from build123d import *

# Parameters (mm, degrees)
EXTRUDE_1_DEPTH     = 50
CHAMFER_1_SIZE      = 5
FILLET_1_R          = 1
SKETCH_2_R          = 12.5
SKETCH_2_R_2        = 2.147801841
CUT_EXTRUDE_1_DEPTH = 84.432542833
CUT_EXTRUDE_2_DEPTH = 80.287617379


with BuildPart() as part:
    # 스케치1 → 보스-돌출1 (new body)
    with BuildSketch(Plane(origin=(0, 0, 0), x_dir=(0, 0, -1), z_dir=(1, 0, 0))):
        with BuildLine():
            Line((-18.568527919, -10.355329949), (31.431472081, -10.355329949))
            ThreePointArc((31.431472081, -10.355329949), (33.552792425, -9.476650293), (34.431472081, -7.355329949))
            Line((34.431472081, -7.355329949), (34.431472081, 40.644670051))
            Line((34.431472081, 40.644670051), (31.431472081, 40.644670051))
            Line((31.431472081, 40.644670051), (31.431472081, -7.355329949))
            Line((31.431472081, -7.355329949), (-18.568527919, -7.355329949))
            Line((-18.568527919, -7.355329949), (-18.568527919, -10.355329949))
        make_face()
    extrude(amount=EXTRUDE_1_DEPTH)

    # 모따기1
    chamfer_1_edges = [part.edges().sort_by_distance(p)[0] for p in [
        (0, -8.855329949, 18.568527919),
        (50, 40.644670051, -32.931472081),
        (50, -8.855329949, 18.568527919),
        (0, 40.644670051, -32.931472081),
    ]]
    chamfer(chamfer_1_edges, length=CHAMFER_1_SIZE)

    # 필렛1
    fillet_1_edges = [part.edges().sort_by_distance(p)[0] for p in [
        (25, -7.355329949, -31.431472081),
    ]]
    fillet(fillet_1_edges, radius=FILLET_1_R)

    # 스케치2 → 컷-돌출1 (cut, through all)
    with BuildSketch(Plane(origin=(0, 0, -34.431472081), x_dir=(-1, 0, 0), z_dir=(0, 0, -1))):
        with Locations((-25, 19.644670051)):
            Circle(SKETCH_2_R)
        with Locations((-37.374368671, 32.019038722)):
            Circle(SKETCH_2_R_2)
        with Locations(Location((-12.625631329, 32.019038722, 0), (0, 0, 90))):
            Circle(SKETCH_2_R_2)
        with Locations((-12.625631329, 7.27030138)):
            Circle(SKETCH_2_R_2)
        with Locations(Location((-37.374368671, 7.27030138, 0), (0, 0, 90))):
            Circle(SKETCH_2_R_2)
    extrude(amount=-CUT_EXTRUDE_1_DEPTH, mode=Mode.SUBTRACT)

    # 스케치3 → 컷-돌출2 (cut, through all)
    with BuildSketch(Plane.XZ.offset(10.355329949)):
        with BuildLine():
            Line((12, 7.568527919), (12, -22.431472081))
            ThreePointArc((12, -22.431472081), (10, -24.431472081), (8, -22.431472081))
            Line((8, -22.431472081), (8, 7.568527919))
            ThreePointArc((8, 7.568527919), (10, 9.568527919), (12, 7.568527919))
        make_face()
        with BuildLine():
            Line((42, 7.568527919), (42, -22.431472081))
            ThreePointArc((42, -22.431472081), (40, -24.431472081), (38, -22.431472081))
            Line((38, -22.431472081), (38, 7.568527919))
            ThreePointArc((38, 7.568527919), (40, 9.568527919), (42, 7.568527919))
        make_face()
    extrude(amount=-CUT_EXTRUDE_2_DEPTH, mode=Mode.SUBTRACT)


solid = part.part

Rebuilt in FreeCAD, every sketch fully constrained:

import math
import FreeCAD as App
import Part
import Sketcher


def edges_at(feature, points):
    """Names of the edges that pass closest to the given points."""
    edges = feature.Shape.Edges
    near = lambda p: min(range(len(edges)), key=lambda i: edges[i].distToShape(Part.Vertex(*p))[0])
    return sorted({f"Edge{near(p) + 1}" for p in points})

doc = App.newDocument("Part")
body = doc.addObject("PartDesign::Body", "Body")

# Sketch on YZ plane
sketch1 = body.newObject("Sketcher::SketchObject", "Sketch")
sketch1.AttachmentSupport = (doc.getObject("YZ_Plane"), [""])
sketch1.MapMode = "FlatFace"
sketch1.addGeometry([
    Part.LineSegment(App.Vector(-10.35533, 18.568528, 0), App.Vector(-10.35533, -31.431472, 0)),  # 0
    Part.ArcOfCircle(Part.Circle(App.Vector(-7.35533, -31.431472, 0), App.Vector(0, 0, 1), 3), math.radians(180), math.radians(270)),  # 1
    Part.LineSegment(App.Vector(-7.35533, -34.431472, 0), App.Vector(40.64467, -34.431472, 0)),  # 2
    Part.LineSegment(App.Vector(40.64467, -34.431472, 0), App.Vector(40.64467, -31.431472, 0)),  # 3
    Part.LineSegment(App.Vector(40.64467, -31.431472, 0), App.Vector(-7.35533, -31.431472, 0)),  # 4
    Part.LineSegment(App.Vector(-7.35533, -31.431472, 0), App.Vector(-7.35533, 18.568528, 0)),  # 5
    Part.LineSegment(App.Vector(-7.35533, 18.568528, 0), App.Vector(-10.35533, 18.568528, 0)),  # 6
], False)
sketch1.addConstraint([
    Sketcher.Constraint("Tangent", 0, 2, 1, 1),
    Sketcher.Constraint("Tangent", 1, 2, 2, 1),
    Sketcher.Constraint("Coincident", 2, 2, 3, 1),
    Sketcher.Constraint("Coincident", 3, 2, 4, 1),
    Sketcher.Constraint("Coincident", 4, 2, 5, 1),
    Sketcher.Constraint("Coincident", 5, 2, 6, 1),
    Sketcher.Constraint("Coincident", 6, 2, 0, 1),
    Sketcher.Constraint("Vertical", 0),
    Sketcher.Constraint("Horizontal", 2),
    Sketcher.Constraint("Vertical", 3),
    Sketcher.Constraint("Horizontal", 4),
    Sketcher.Constraint("Vertical", 5),
    Sketcher.Constraint("Horizontal", 6),
    Sketcher.Constraint("Coincident", 4, 2, 1, 3),
    Sketcher.Constraint("Radius", 1, 3.0),
    Sketcher.Constraint("DistanceX", 2, 1, 2, 2, 48.0),
    Sketcher.Constraint("DistanceY", 0, 2, 0, 1, 50.0),
    Sketcher.Constraint("DistanceX", 1, 3, -1, 1, 7.35533),
    Sketcher.Constraint("DistanceY", 1, 3, -1, 1, 31.431472),
])
pad1 = body.newObject("PartDesign::Pad", "Pad")
pad1.Profile = sketch1
pad1.Length = 50
doc.recompute()

chamfer = body.newObject("PartDesign::Chamfer", "Chamfer")
chamfer.Base = (pad1, edges_at(pad1, [
    (0, -8.855, 18.569),
    (50, 40.645, -32.931),
    (50, -8.855, 18.569),
    (0, 40.645, -32.931),
]))
chamfer.Size = 5
doc.recompute()

fillet = body.newObject("PartDesign::Fillet", "Fillet")
fillet.Base = (chamfer, edges_at(chamfer, [(25, -7.355, -31.431)]))
fillet.Radius = 1

# Sketch on XY plane
sketch2 = body.newObject("Sketcher::SketchObject", "Sketch001")
sketch2.AttachmentSupport = (doc.getObject("XY_Plane"), [""])
sketch2.MapMode = "FlatFace"
sketch2.AttachmentOffset = App.Placement(App.Vector(0, 0, -34.431472), App.Rotation())
sketch2.addGeometry([
    Part.Circle(App.Vector(25, 19.64467, 0), App.Vector(0, 0, 1), 12.5),  # 0
    Part.Circle(App.Vector(37.374369, 32.019039, 0), App.Vector(0, 0, 1), 2.147802),  # 1
    Part.Circle(App.Vector(12.625631, 32.019039, 0), App.Vector(0, 0, 1), 2.147802),  # 2
    Part.Circle(App.Vector(12.625631, 7.270301, 0), App.Vector(0, 0, 1), 2.147802),  # 3
    Part.Circle(App.Vector(37.374369, 7.270301, 0), App.Vector(0, 0, 1), 2.147802),  # 4
], False)
sketch2.addConstraint([
    Sketcher.Constraint("Equal", 1, 2),
    Sketcher.Constraint("Equal", 2, 3),
    Sketcher.Constraint("Equal", 3, 4),
    Sketcher.Constraint("Horizontal", 1, 3, 2, 3),
    Sketcher.Constraint("Horizontal", 3, 3, 4, 3),
    Sketcher.Constraint("Vertical", 2, 3, 3, 3),
    Sketcher.Constraint("Vertical", 1, 3, 4, 3),
    Sketcher.Constraint("Diameter", 0, 25.0),
    Sketcher.Constraint("DistanceX", -1, 1, 0, 3, 25.0),
    Sketcher.Constraint("Diameter", 1, 4.295604),
    Sketcher.Constraint("DistanceY", -1, 1, 3, 3, 7.270301),
    Sketcher.Constraint("DistanceY", -1, 1, 0, 3, 19.64467),
    Sketcher.Constraint("DistanceX", -1, 1, 1, 3, 37.374369),
    Sketcher.Constraint("DistanceY", -1, 1, 1, 3, 32.019039),
    Sketcher.Constraint("DistanceX", -1, 1, 2, 3, 12.625631),
])
pocket1 = body.newObject("PartDesign::Pocket", "Pocket")
pocket1.Profile = sketch2
pocket1.Type = "ThroughAll"
pocket1.Reversed = True

# Sketch on XZ plane
sketch3 = body.newObject("Sketcher::SketchObject", "Sketch002")
sketch3.AttachmentSupport = (doc.getObject("XZ_Plane"), [""])
sketch3.MapMode = "FlatFace"
sketch3.AttachmentOffset = App.Placement(App.Vector(0, 0, 10.35533), App.Rotation())
sketch3.addGeometry([
    Part.LineSegment(App.Vector(12, -22.431472, 0), App.Vector(12, 7.568528, 0)),  # 0
    Part.ArcOfCircle(Part.Circle(App.Vector(10, 7.568528, 0), App.Vector(0, 0, 1), 2), math.radians(0), math.radians(180)),  # 1
    Part.LineSegment(App.Vector(8, 7.568528, 0), App.Vector(8, -22.431472, 0)),  # 2
    Part.ArcOfCircle(Part.Circle(App.Vector(10, -22.431472, 0), App.Vector(0, 0, 1), 2), math.radians(180), math.radians(360)),  # 3
    Part.LineSegment(App.Vector(42, -22.431472, 0), App.Vector(42, 7.568528, 0)),  # 4
    Part.ArcOfCircle(Part.Circle(App.Vector(40, 7.568528, 0), App.Vector(0, 0, 1), 2), math.radians(0), math.radians(180)),  # 5
    Part.LineSegment(App.Vector(38, 7.568528, 0), App.Vector(38, -22.431472, 0)),  # 6
    Part.ArcOfCircle(Part.Circle(App.Vector(40, -22.431472, 0), App.Vector(0, 0, 1), 2), math.radians(180), math.radians(360)),  # 7
], False)
sketch3.addConstraint([
    Sketcher.Constraint("Tangent", 0, 2, 1, 1),
    Sketcher.Constraint("Tangent", 1, 2, 2, 1),
    Sketcher.Constraint("Tangent", 2, 2, 3, 1),
    Sketcher.Constraint("Tangent", 3, 2, 0, 1),
    Sketcher.Constraint("Tangent", 4, 2, 5, 1),
    Sketcher.Constraint("Tangent", 5, 2, 6, 1),
    Sketcher.Constraint("Tangent", 6, 2, 7, 1),
    Sketcher.Constraint("Tangent", 7, 2, 4, 1),
    Sketcher.Constraint("Vertical", 0),
    Sketcher.Constraint("Vertical", 2),
    Sketcher.Constraint("Vertical", 4),
    Sketcher.Constraint("Vertical", 6),
    Sketcher.Constraint("Equal", 3, 5),
    Sketcher.Constraint("Horizontal", 1, 3, 5, 3),
    Sketcher.Constraint("Horizontal", 3, 3, 7, 3),
    Sketcher.Constraint("Radius", 1, 2.0),
    Sketcher.Constraint("DistanceY", 0, 1, 0, 2, 30.0),
    Sketcher.Constraint("DistanceX", -1, 1, 1, 3, 10.0),
    Sketcher.Constraint("DistanceX", -1, 1, 5, 3, 40.0),
    Sketcher.Constraint("DistanceY", -1, 1, 1, 3, 7.568528),
])
pocket2 = body.newObject("PartDesign::Pocket", "Pocket001")
pocket2.Profile = sketch3
pocket2.Type = "ThroughAll"

doc.recompute()
